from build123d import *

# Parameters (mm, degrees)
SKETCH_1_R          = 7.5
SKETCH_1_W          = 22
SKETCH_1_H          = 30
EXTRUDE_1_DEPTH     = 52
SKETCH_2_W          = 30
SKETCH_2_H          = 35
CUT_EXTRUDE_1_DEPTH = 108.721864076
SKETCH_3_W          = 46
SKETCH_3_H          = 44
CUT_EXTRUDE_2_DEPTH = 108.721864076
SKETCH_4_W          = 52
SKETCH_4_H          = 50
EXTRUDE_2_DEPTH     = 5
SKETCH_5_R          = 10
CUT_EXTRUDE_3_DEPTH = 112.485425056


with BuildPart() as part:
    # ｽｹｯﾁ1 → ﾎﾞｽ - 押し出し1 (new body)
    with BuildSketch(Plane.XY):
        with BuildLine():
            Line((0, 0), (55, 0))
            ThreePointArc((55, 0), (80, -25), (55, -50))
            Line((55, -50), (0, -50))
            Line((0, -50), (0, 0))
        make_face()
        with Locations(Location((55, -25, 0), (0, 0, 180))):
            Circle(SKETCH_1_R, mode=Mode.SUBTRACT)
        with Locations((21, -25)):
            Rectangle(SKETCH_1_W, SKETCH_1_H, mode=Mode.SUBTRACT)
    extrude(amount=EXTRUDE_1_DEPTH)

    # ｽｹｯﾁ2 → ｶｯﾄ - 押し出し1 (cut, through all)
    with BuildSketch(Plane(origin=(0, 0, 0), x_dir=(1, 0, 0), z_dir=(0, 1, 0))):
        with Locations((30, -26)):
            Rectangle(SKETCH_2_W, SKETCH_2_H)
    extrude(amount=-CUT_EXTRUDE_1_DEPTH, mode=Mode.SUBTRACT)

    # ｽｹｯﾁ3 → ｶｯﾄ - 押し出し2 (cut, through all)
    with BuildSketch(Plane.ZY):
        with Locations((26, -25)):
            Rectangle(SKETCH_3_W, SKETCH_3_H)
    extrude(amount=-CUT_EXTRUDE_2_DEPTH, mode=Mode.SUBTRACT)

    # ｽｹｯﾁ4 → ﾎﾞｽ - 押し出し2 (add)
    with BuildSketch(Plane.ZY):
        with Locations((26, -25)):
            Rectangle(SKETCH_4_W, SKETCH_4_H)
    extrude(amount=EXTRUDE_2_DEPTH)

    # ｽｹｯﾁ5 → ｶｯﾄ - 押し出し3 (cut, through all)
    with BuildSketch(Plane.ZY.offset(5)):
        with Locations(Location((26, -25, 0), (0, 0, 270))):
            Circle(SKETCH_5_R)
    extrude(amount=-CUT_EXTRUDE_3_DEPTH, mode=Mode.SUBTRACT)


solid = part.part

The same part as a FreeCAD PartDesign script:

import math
import FreeCAD as App
import Part
import Sketcher


def add_polygon(sketch, points):
    """Adds a closed chain of lines whose ends are joined by coincident constraints."""
    first, n = sketch.GeometryCount, len(points)
    for a, b in zip(points, points[1:] + points[:1]):
        sketch.addGeometry(Part.LineSegment(App.Vector(*a, 0), App.Vector(*b, 0)), False)
    for i in range(n):
        sketch.addConstraint(Sketcher.Constraint("Coincident", first + i, 2, first + (i + 1) % n, 1))

doc = App.newDocument("Part")
body = doc.addObject("PartDesign::Body", "Body")

# Sketch on XY plane
sketch1 = body.newObject("Sketcher::SketchObject", "Sketch")
sketch1.AttachmentSupport = (doc.getObject("XY_Plane"), [""])
sketch1.MapMode = "FlatFace"
sketch1.addGeometry(Part.LineSegment(App.Vector(55, 0, 0), App.Vector(0, 0, 0)), False)  # 0
sketch1.addGeometry(Part.LineSegment(App.Vector(0, 0, 0), App.Vector(0, -50, 0)), False)  # 1
sketch1.addGeometry(Part.LineSegment(App.Vector(0, -50, 0), App.Vector(55, -50, 0)), False)  # 2
sketch1.addGeometry(Part.ArcOfCircle(Part.Circle(App.Vector(55, -25, 0), App.Vector(0, 0, 1), 25), math.radians(-90), math.radians(90)), False)  # 3
sketch1.addGeometry(Part.Circle(App.Vector(55, -25, 0), App.Vector(0, 0, 1), 7.5), False)  # 4
add_polygon(sketch1, [(10, -40), (10, -10), (32, -10), (32, -40)])  # lines 5-8
sketch1.addConstraint([
    Sketcher.Constraint("Coincident", 0, 2, 1, 1),
    Sketcher.Constraint("Coincident", 1, 2, 2, 1),
    Sketcher.Constraint("Tangent", 2, 2, 3, 1),
    Sketcher.Constraint("Tangent", 3, 2, 0, 1),
    Sketcher.Constraint("Horizontal", 0),
    Sketcher.Constraint("Vertical", 1),
    Sketcher.Constraint("Horizontal", 2),
    Sketcher.Constraint("Vertical", 5),
    Sketcher.Constraint("Horizontal", 6),
    Sketcher.Constraint("Vertical", 7),
    Sketcher.Constraint("Horizontal", 8),
    Sketcher.Constraint("Coincident", 0, 2, -1, 1),
    Sketcher.Constraint("Coincident", 4, 3, 3, 3),
    Sketcher.Constraint("Diameter", 4, 15.0),
    Sketcher.Constraint("Radius", 3, 25.0),
    Sketcher.Constraint("DistanceX", 0, 2, 0, 1, 55.0),
    Sketcher.Constraint("DistanceX", 6, 1, 6, 2, 22.0),
    Sketcher.Constraint("DistanceY", 5, 1, 5, 2, 30.0),
    Sketcher.Constraint("DistanceX", -1, 1, 5, 2, 10.0),
    Sketcher.Constraint("DistanceY", 5, 2, -1, 1, 10.0),
])
pad1 = body.newObject("PartDesign::Pad", "Pad")
pad1.Profile = sketch1
pad1.Length = 52

# Sketch on XZ plane
sketch2 = body.newObject("Sketcher::SketchObject", "Sketch001")
sketch2.AttachmentSupport = (doc.getObject("XZ_Plane"), [""])
sketch2.MapMode = "FlatFace"
add_polygon(sketch2, [(15, 8.5), (15, 43.5), (45, 43.5), (45, 8.5)])  # lines 0-3
sketch2.addConstraint([
    Sketcher.Constraint("Vertical", 0),
    Sketcher.Constraint("Horizontal", 1),
    Sketcher.Constraint("Vertical", 2),
    Sketcher.Constraint("Horizontal", 3),
    Sketcher.Constraint("DistanceX", 1, 1, 1, 2, 30.0),
    Sketcher.Constraint("DistanceY", 0, 1, 0, 2, 35.0),
    Sketcher.Constraint("DistanceX", -1, 1, 0, 2, 15.0),
    Sketcher.Constraint("DistanceY", -1, 1, 0, 2, 43.5),
])
pocket1 = body.newObject("PartDesign::Pocket", "Pocket")
pocket1.Profile = sketch2
pocket1.Type = "ThroughAll"
pocket1.Reversed = True

# Sketch on YZ plane
sketch3 = body.newObject("Sketcher::SketchObject", "Sketch002")
sketch3.AttachmentSupport = (doc.getObject("YZ_Plane"), [""])
sketch3.MapMode = "FlatFace"
add_polygon(sketch3, [(-3, 3), (-47, 3), (-47, 49), (-3, 49)])  # lines 0-3
sketch3.addConstraint([
    Sketcher.Constraint("Horizontal", 0),
    Sketcher.Constraint("Vertical", 1),
    Sketcher.Constraint("Horizontal", 2),
    Sketcher.Constraint("Vertical", 3),
    Sketcher.Constraint("DistanceX", 0, 2, 0, 1, 44.0),
    Sketcher.Constraint("DistanceY", 1, 1, 1, 2, 46.0),
    Sketcher.Constraint("DistanceX", 0, 2, -1, 1, 47.0),
    Sketcher.Constraint("DistanceY", -1, 1, 0, 2, 3.0),
])
pocket2 = body.newObject("PartDesign::Pocket", "Pocket001")
pocket2.Profile = sketch3
pocket2.Type = "ThroughAll"
pocket2.Reversed = True

# Sketch on YZ plane
sketch4 = body.newObject("Sketcher::SketchObject", "Sketch003")
sketch4.AttachmentSupport = (doc.getObject("YZ_Plane"), [""])
sketch4.MapMode = "FlatFace"
add_polygon(sketch4, [(0, 0), (-50, 0), (-50, 52), (0, 52)])  # lines 0-3
sketch4.addConstraint([
    Sketcher.Constraint("Horizontal", 0),
    Sketcher.Constraint("Vertical", 1),
    Sketcher.Constraint("Horizontal", 2),
    Sketcher.Constraint("Vertical", 3),
    Sketcher.Constraint("Coincident", 3, 2, -1, 1),
    Sketcher.Constraint("DistanceX", 0, 2, 0, 1, 50.0),
    Sketcher.Constraint("DistanceY", 1, 1, 1, 2, 52.0),
])
pad2 = body.newObject("PartDesign::Pad", "Pad001")
pad2.Profile = sketch4
pad2.Length = 5
pad2.Reversed = True

# Sketch on YZ plane
sketch5 = body.newObject("Sketcher::SketchObject", "Sketch004")
sketch5.AttachmentSupport = (doc.getObject("YZ_Plane"), [""])
sketch5.MapMode = "FlatFace"
sketch5.AttachmentOffset = App.Placement(App.Vector(0, 0, -5), App.Rotation())
sketch5.addGeometry(Part.Circle(App.Vector(-25, 26, 0), App.Vector(0, 0, 1), 10), False)
sketch5.addConstraint([
    Sketcher.Constraint("Diameter", 0, 20.0),
    Sketcher.Constraint("DistanceX", 0, 3, -1, 1, 25.0),
    Sketcher.Constraint("DistanceY", -1, 1, 0, 3, 26.0),
])
pocket3 = body.newObject("PartDesign::Pocket", "Pocket002")
pocket3.Profile = sketch5
pocket3.Type = "ThroughAll"
pocket3.Reversed = True

doc.recompute()
